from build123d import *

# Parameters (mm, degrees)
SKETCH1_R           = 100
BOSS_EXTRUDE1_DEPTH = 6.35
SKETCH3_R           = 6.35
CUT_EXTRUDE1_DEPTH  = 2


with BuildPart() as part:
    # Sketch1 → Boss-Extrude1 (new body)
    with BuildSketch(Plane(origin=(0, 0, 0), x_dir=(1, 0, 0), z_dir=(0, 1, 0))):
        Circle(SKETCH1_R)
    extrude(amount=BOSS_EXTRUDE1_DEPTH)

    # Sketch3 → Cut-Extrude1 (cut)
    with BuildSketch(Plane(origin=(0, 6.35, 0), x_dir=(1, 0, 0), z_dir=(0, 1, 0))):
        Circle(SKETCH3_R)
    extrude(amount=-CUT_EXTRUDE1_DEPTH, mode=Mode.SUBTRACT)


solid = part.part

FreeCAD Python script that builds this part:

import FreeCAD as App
import Part
import Sketcher
from FreeCAD import Vector

doc = App.newDocument("Part")
body = doc.addObject("PartDesign::Body", "Body")

sketch1 = body.newObject("Sketcher::SketchObject", "Sketch")
sketch1.AttachmentSupport = (doc.getObject("XZ_Plane"), [""])
sketch1.MapMode = "FlatFace"
sketch1.addGeometry(Part.Circle(Vector(0, 0, 0), Vector(0, 0, 1), 100), False)
sketch1.addConstraint([
    Sketcher.Constraint("Coincident", 0, 3, -1, 1),
    Sketcher.Constraint("Diameter", 0, 200.0),
])
pad1 = body.newObject("PartDesign::Pad", "Pad")
pad1.Profile = sketch1
pad1.Length = 6.35
pad1.Reversed = True

sketch2 = body.newObject("Sketcher::SketchObject", "Sketch001")
sketch2.AttachmentSupport = (doc.getObject("XZ_Plane"), [""])
sketch2.MapMode = "FlatFace"
sketch2.AttachmentOffset = App.Placement(Vector(0, 0, -6.35), App.Rotation())
sketch2.addGeometry(Part.Circle(Vector(0, 0, 0), Vector(0, 0, 1), 6.35), False)
sketch2.addConstraint([
    Sketcher.Constraint("Coincident", 0, 3, -1, 1),
    Sketcher.Constraint("Diameter", 0, 12.7),
])
pocket1 = body.newObject("PartDesign::Pocket", "Pocket")
pocket1.Profile = sketch2
pocket1.Length = 2
pocket1.Reversed = True

doc.recompute()
